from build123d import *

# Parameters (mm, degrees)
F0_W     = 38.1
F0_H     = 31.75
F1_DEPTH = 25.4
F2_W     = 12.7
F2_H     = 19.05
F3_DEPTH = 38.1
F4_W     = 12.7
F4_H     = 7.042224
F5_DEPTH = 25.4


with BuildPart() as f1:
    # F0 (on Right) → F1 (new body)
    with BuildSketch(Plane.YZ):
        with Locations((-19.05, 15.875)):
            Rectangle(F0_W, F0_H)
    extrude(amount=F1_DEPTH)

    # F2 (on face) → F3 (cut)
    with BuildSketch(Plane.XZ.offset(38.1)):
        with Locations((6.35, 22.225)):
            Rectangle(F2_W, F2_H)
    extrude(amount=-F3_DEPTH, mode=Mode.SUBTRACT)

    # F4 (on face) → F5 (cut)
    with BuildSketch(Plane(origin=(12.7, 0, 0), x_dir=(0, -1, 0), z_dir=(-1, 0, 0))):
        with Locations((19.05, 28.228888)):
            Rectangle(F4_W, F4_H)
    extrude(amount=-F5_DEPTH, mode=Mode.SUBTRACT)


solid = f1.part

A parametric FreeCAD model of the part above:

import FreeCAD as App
import Part
import Sketcher
Q = App.Units.Quantity

doc = App.newDocument("Part")
body = doc.addObject("PartDesign::Body", "Body")

# Sketch on YZ plane
sketch1 = body.newObject("Sketcher::SketchObject", "Sketch")
sketch1.AttachmentSupport = (doc.getObject("YZ_Plane"), [""])
sketch1.MapMode = "FlatFace"
sketch1.addGeometry([
    Part.LineSegment(App.Vector(-38.1, 31.75, 0), App.Vector(-38.1, 0, 0)),
    Part.LineSegment(App.Vector(-38.1, 0, 0), App.Vector(0, 0, 0)),
    Part.LineSegment(App.Vector(0, 0, 0), App.Vector(0, 31.75, 0)),
    Part.LineSegment(App.Vector(0, 31.75, 0), App.Vector(-38.1, 31.75, 0)),
], False)
sketch1.addConstraint([
    Sketcher.Constraint("Coincident", 0, 2, 1, 1),
    Sketcher.Constraint("Coincident", 1, 2, 2, 1),
    Sketcher.Constraint("Coincident", 2, 2, 3, 1),
    Sketcher.Constraint("Coincident", 3, 2, 0, 1),
    Sketcher.Constraint("Vertical", 0),
    Sketcher.Constraint("Horizontal", 1),
    Sketcher.Constraint("Vertical", 2),
    Sketcher.Constraint("Horizontal", 3),
    Sketcher.Constraint("Coincident", 1, 2, -1, 1),
    Sketcher.Constraint("DistanceX", 1, 1, 1, 2, Q("1.5 in")),
    Sketcher.Constraint("DistanceY", 0, 2, 0, 1, Q("1.25 in")),
])
pad1 = body.newObject("PartDesign::Pad", "Pad")
pad1.Profile = sketch1
pad1.Length = Q("1 in")

# Sketch on XZ plane
sketch2 = body.newObject("Sketcher::SketchObject", "Sketch001")
sketch2.AttachmentSupport = (doc.getObject("XZ_Plane"), [""])
sketch2.MapMode = "FlatFace"
sketch2.AttachmentOffset = App.Placement(App.Vector(0, 0, 1.5 * 25.4), App.Rotation())
sketch2.addGeometry([
    Part.LineSegment(App.Vector(0, 31.75, 0), App.Vector(0, 12.7, 0)),
    Part.LineSegment(App.Vector(0, 12.7, 0), App.Vector(12.7, 12.7, 0)),
    Part.LineSegment(App.Vector(12.7, 12.7, 0), App.Vector(12.7, 31.75, 0)),
    Part.LineSegment(App.Vector(12.7, 31.75, 0), App.Vector(0, 31.75, 0)),
], False)
sketch2.addConstraint([
    Sketcher.Constraint("Coincident", 0, 2, 1, 1),
    Sketcher.Constraint("Coincident", 1, 2, 2, 1),
    Sketcher.Constraint("Coincident", 2, 2, 3, 1),
    Sketcher.Constraint("Coincident", 3, 2, 0, 1),
    Sketcher.Constraint("Vertical", 0),
    Sketcher.Constraint("Horizontal", 1),
    Sketcher.Constraint("Vertical", 2),
    Sketcher.Constraint("Horizontal", 3),
    Sketcher.Constraint("PointOnObject", 0, 2, -2),
    Sketcher.Constraint("DistanceX", 1, 1, 1, 2, Q("0.5 in")),
    Sketcher.Constraint("DistanceY", 0, 2, 0, 1, Q("0.75 in")),
    Sketcher.Constraint("DistanceY", -1, 1, 0, 2, Q("0.5 in")),
])
pocket1 = body.newObject("PartDesign::Pocket", "Pocket")
pocket1.Profile = sketch2
pocket1.Length = Q("1.5 in")

# Sketch on YZ plane
sketch3 = body.newObject("Sketcher::SketchObject", "Sketch002")
sketch3.AttachmentSupport = (doc.getObject("YZ_Plane"), [""])
sketch3.MapMode = "FlatFace"
sketch3.AttachmentOffset = App.Placement(App.Vector(0, 0, 0.5 * 25.4), App.Rotation())
sketch3.addGeometry([
    Part.LineSegment(App.Vector(-12.7, 31.75, 0), App.Vector(-12.7, 24.707776, 0)),
    Part.LineSegment(App.Vector(-12.7, 24.707776, 0), App.Vector(-25.4, 24.707776, 0)),
    Part.LineSegment(App.Vector(-25.4, 24.707776, 0), App.Vector(-25.4, 31.75, 0)),
    Part.LineSegment(App.Vector(-25.4, 31.75, 0), App.Vector(-12.7, 31.75, 0)),
], False)
sketch3.addConstraint([
    Sketcher.Constraint("Coincident", 0, 2, 1, 1),
    Sketcher.Constraint("Coincident", 1, 2, 2, 1),
    Sketcher.Constraint("Coincident", 2, 2, 3, 1),
    Sketcher.Constraint("Coincident", 3, 2, 0, 1),
    Sketcher.Constraint("Vertical", 0),
    Sketcher.Constraint("Horizontal", 1),
    Sketcher.Constraint("Vertical", 2),
    Sketcher.Constraint("Horizontal", 3),
    Sketcher.Constraint("DistanceX", 1, 2, 1, 1, Q("0.5 in")),
    Sketcher.Constraint("DistanceX", 1, 2, -1, 1, Q("1 in")),
    Sketcher.Constraint("DistanceY", -1, 1, 2, 2, Q("1.25 in")),
    Sketcher.Constraint("DistanceY", 0, 2, 0, 1, Q("7.042224 mm")),
])
pocket2 = body.newObject("PartDesign::Pocket", "Pocket001")
pocket2.Profile = sketch3
pocket2.Length = Q("1 in")
pocket2.Reversed = True

doc.recompute()
